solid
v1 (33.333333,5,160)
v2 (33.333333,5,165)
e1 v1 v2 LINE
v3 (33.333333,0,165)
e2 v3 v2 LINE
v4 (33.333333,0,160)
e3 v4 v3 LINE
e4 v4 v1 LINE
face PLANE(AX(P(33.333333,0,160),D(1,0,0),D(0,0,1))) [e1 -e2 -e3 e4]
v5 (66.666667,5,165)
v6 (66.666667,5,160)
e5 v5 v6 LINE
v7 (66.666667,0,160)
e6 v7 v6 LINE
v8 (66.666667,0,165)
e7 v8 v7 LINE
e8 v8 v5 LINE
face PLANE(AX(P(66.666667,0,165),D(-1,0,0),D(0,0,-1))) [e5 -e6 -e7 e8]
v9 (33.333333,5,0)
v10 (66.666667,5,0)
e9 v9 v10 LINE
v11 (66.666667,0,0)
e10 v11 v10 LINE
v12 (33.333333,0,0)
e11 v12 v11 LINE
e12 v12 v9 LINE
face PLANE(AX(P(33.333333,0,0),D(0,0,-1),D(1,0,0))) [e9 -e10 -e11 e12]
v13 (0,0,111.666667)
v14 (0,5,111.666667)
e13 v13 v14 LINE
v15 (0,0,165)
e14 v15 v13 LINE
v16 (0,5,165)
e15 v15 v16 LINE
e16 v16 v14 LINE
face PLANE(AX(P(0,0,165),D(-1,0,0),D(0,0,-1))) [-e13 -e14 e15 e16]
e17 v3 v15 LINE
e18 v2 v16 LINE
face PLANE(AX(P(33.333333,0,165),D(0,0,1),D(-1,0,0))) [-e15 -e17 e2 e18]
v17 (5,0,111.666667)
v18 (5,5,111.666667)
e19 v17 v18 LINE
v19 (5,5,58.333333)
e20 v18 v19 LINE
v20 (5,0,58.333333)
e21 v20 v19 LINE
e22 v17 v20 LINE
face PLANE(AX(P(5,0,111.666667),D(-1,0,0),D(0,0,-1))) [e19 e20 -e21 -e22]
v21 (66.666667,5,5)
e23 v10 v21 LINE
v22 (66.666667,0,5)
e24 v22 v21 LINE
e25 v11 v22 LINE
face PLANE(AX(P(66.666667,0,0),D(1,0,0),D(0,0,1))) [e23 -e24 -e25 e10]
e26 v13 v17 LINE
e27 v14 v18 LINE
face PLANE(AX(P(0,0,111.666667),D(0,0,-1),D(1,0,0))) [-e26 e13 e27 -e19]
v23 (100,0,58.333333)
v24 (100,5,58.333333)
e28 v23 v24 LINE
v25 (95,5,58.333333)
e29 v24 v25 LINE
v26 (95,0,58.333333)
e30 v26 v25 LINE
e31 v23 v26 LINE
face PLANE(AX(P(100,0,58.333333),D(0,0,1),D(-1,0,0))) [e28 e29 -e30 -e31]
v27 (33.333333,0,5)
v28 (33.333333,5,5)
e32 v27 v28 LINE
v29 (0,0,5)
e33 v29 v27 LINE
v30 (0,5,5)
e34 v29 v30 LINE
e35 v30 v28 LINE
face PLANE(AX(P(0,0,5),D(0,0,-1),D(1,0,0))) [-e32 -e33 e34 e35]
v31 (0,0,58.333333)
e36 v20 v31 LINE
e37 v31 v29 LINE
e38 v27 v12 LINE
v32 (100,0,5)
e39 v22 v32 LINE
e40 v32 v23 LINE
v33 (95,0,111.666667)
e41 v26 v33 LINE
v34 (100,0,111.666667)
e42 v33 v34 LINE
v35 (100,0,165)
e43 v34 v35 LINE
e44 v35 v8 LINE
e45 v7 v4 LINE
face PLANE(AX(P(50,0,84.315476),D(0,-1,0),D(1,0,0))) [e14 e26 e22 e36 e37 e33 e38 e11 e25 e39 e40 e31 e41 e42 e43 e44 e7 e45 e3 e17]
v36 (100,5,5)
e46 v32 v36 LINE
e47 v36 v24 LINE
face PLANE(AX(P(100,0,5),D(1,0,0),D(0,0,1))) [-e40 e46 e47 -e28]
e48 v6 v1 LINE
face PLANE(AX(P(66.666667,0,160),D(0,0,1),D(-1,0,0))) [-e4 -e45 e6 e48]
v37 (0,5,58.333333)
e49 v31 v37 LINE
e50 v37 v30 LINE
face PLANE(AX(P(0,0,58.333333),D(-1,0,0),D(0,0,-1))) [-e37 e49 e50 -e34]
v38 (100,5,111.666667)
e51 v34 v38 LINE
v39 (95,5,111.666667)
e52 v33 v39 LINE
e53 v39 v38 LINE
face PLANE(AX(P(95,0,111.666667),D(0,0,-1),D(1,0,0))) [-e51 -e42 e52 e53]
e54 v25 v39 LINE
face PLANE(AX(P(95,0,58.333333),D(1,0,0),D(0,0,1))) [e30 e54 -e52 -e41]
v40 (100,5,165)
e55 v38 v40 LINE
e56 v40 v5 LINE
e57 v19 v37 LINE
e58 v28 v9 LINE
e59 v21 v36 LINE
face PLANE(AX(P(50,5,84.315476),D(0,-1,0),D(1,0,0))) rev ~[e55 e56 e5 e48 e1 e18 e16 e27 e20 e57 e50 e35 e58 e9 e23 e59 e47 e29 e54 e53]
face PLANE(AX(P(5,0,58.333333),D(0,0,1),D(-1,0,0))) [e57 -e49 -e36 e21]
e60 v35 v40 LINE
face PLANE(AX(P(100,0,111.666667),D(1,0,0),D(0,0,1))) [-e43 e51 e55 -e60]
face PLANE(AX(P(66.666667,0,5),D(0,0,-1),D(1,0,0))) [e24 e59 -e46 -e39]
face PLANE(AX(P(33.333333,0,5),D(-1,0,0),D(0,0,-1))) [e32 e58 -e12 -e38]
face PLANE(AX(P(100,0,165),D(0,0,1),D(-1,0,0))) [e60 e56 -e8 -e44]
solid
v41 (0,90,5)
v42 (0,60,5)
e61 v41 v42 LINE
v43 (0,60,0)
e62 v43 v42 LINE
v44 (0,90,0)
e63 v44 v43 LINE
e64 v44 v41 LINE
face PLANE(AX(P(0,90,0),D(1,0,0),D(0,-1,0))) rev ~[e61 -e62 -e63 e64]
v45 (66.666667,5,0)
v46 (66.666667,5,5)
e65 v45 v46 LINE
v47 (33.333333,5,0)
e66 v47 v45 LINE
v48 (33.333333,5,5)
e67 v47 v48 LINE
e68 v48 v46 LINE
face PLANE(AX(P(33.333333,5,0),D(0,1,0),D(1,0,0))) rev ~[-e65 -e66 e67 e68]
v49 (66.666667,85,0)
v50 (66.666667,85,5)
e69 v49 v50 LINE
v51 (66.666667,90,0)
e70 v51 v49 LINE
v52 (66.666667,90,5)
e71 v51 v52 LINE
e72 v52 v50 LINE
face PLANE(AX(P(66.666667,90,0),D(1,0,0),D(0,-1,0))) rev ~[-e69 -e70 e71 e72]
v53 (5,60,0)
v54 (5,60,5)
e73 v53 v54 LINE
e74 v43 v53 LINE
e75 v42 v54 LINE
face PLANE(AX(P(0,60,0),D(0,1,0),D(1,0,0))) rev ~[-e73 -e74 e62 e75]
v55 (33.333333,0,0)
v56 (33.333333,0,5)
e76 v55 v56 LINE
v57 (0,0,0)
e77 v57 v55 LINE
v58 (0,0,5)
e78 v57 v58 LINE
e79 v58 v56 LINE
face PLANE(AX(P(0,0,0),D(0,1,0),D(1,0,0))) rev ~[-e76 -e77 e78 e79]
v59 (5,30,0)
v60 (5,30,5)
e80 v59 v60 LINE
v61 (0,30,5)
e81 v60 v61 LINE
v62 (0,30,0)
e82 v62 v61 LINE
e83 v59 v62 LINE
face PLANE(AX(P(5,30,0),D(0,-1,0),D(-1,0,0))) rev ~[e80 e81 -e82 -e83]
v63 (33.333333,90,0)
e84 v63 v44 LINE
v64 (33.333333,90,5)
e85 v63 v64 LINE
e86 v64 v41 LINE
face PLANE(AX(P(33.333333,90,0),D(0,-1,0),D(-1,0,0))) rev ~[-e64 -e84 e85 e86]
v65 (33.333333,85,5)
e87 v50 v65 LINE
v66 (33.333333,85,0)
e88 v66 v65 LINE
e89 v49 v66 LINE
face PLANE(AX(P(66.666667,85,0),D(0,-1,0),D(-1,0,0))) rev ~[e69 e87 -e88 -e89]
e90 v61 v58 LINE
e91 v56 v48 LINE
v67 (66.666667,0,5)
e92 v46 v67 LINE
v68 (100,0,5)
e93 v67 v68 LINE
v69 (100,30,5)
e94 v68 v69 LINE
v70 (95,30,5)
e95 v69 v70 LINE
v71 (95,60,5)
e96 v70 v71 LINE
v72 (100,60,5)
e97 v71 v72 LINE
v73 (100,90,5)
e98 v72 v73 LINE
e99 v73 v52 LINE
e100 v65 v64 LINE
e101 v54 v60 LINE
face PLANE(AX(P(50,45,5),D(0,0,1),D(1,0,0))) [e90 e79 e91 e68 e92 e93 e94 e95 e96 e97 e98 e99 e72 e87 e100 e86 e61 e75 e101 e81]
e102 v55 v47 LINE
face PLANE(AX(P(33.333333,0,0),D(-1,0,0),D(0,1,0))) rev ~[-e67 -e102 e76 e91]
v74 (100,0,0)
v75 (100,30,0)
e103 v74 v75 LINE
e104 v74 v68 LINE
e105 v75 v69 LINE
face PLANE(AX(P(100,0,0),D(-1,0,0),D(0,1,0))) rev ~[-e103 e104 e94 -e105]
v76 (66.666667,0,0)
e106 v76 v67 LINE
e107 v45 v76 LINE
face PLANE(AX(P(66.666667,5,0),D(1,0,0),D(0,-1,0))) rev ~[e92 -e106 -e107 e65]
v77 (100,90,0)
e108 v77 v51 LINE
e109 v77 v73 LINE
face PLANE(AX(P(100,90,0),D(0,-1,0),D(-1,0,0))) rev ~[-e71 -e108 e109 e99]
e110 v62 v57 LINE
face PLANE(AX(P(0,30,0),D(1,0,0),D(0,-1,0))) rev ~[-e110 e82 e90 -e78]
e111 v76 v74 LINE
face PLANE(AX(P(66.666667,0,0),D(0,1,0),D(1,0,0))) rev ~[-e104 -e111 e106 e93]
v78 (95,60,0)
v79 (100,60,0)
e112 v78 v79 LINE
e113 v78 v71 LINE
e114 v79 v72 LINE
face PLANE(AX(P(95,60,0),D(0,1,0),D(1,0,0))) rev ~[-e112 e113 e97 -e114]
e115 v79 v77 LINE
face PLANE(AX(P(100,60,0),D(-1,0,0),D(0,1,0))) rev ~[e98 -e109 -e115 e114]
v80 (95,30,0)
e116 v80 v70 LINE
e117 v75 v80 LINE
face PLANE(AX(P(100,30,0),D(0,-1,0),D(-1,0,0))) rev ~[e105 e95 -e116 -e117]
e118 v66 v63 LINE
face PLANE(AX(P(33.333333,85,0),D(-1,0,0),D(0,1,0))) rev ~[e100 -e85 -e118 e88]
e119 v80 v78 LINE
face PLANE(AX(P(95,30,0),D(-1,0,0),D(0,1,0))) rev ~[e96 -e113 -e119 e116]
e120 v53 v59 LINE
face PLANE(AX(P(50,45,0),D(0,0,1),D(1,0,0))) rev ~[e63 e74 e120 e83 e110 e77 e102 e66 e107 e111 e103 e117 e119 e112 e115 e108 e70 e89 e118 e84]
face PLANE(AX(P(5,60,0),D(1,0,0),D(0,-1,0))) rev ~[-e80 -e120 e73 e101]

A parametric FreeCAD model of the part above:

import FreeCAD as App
import Part
import Sketcher

V = App.Vector

doc = App.newDocument("Part")
body = doc.addObject("PartDesign::Body", "Body")

sketch1 = doc.addObject("Sketcher::SketchObject", "Sketch")
body.addObject(sketch1)
sketch1.AttachmentSupport = (doc.XY_Plane, [""])
sketch1.MapMode = "FlatFace"
sketch1.addGeometry(Part.LineSegment(V(0, 30, 0), V(0, 0, 0)), False)
sketch1.addGeometry(Part.LineSegment(V(0, 0, 0), V(33, 0, 0)), False)
sketch1.addGeometry(Part.LineSegment(V(33, 0, 0), V(33, 5, 0)), False)
sketch1.addGeometry(Part.LineSegment(V(33, 5, 0), V(67, 5, 0)), False)
sketch1.addGeometry(Part.LineSegment(V(67, 5, 0), V(67, 0, 0)), False)
sketch1.addGeometry(Part.LineSegment(V(67, 0, 0), V(100, 0, 0)), False)
sketch1.addGeometry(Part.LineSegment(V(100, 0, 0), V(100, 30, 0)), False)
sketch1.addGeometry(Part.LineSegment(V(100, 30, 0), V(95, 30, 0)), False)
sketch1.addGeometry(Part.LineSegment(V(95, 30, 0), V(95, 60, 0)), False)
sketch1.addGeometry(Part.LineSegment(V(95, 60, 0), V(100, 60, 0)), False)
sketch1.addGeometry(Part.LineSegment(V(100, 60, 0), V(100, 90, 0)), False)
sketch1.addGeometry(Part.LineSegment(V(100, 90, 0), V(67, 90, 0)), False)
sketch1.addGeometry(Part.LineSegment(V(67, 90, 0), V(67, 85, 0)), False)
sketch1.addGeometry(Part.LineSegment(V(67, 85, 0), V(33, 85, 0)), False)
sketch1.addGeometry(Part.LineSegment(V(33, 85, 0), V(33, 90, 0)), False)
sketch1.addGeometry(Part.LineSegment(V(33, 90, 0), V(0, 90, 0)), False)
sketch1.addGeometry(Part.LineSegment(V(0, 90, 0), V(0, 60, 0)), False)
sketch1.addGeometry(Part.LineSegment(V(0, 60, 0), V(5, 60, 0)), False)
sketch1.addGeometry(Part.LineSegment(V(5, 60, 0), V(5, 30, 0)), False)
sketch1.addGeometry(Part.LineSegment(V(5, 30, 0), V(0, 30, 0)), False)
sketch1.addConstraint(Sketcher.Constraint("Coincident", 0, 2, 1, 1))
sketch1.addConstraint(Sketcher.Constraint("Coincident", 1, 2, 2, 1))
sketch1.addConstraint(Sketcher.Constraint("Coincident", 2, 2, 3, 1))
sketch1.addConstraint(Sketcher.Constraint("Coincident", 3, 2, 4, 1))
sketch1.addConstraint(Sketcher.Constraint("Coincident", 4, 2, 5, 1))
sketch1.addConstraint(Sketcher.Constraint("Coincident", 5, 2, 6, 1))
sketch1.addConstraint(Sketcher.Constraint("Coincident", 6, 2, 7, 1))
sketch1.addConstraint(Sketcher.Constraint("Coincident", 7, 2, 8, 1))
sketch1.addConstraint(Sketcher.Constraint("Coincident", 8, 2, 9, 1))
sketch1.addConstraint(Sketcher.Constraint("Coincident", 9, 2, 10, 1))
sketch1.addConstraint(Sketcher.Constraint("Coincident", 10, 2, 11, 1))
sketch1.addConstraint(Sketcher.Constraint("Coincident", 11, 2, 12, 1))
sketch1.addConstraint(Sketcher.Constraint("Coincident", 12, 2, 13, 1))
sketch1.addConstraint(Sketcher.Constraint("Coincident", 13, 2, 14, 1))
sketch1.addConstraint(Sketcher.Constraint("Coincident", 14, 2, 15, 1))
sketch1.addConstraint(Sketcher.Constraint("Coincident", 15, 2, 16, 1))
sketch1.addConstraint(Sketcher.Constraint("Coincident", 16, 2, 17, 1))
sketch1.addConstraint(Sketcher.Constraint("Coincident", 17, 2, 18, 1))
sketch1.addConstraint(Sketcher.Constraint("Coincident", 18, 2, 19, 1))
sketch1.addConstraint(Sketcher.Constraint("Coincident", 19, 2, 0, 1))
sketch1.addConstraint(Sketcher.Constraint("Vertical", 0))
sketch1.addConstraint(Sketcher.Constraint("Horizontal", 1))
sketch1.addConstraint(Sketcher.Constraint("Vertical", 2))
sketch1.addConstraint(Sketcher.Constraint("Horizontal", 3))
sketch1.addConstraint(Sketcher.Constraint("Vertical", 4))
sketch1.addConstraint(Sketcher.Constraint("Horizontal", 5))
sketch1.addConstraint(Sketcher.Constraint("Vertical", 6))
sketch1.addConstraint(Sketcher.Constraint("Horizontal", 7))
sketch1.addConstraint(Sketcher.Constraint("Vertical", 8))
sketch1.addConstraint(Sketcher.Constraint("Horizontal", 9))
sketch1.addConstraint(Sketcher.Constraint("Vertical", 10))
sketch1.addConstraint(Sketcher.Constraint("Horizontal", 11))
sketch1.addConstraint(Sketcher.Constraint("Vertical", 12))
sketch1.addConstraint(Sketcher.Constraint("Horizontal", 13))
sketch1.addConstraint(Sketcher.Constraint("Vertical", 14))
sketch1.addConstraint(Sketcher.Constraint("Horizontal", 15))
sketch1.addConstraint(Sketcher.Constraint("Vertical", 16))
sketch1.addConstraint(Sketcher.Constraint("Horizontal", 17))
sketch1.addConstraint(Sketcher.Constraint("Vertical", 18))
sketch1.addConstraint(Sketcher.Constraint("Horizontal", 19))
sketch1.addConstraint(Sketcher.Constraint("Coincident", 0, 2, -1, 1))
sketch1.addConstraint(Sketcher.Constraint("PointOnObject", 4, 2, -1))
sketch1.addConstraint(Sketcher.Constraint("PointOnObject", 15, 2, -2))
sketch1.addConstraint(Sketcher.Constraint("Horizontal", 11, 2, 14, 2))
sketch1.addConstraint(Sketcher.Constraint("Horizontal", 9, 2, 16, 2))
sketch1.addConstraint(Sketcher.Constraint("Horizontal", 7, 2, 18, 2))
sketch1.addConstraint(Sketcher.Constraint("Vertical", 6, 2, 9, 2))
sketch1.addConstraint(Sketcher.Constraint("Vertical", 4, 2, 11, 2))
sketch1.addConstraint(Sketcher.Constraint("Vertical", 2, 2, 13, 2))
sketch1.addConstraint(Sketcher.Constraint("Equal", 1, 3))
sketch1.addConstraint(Sketcher.Constraint("Equal", 3, 5))
sketch1.addConstraint(Sketcher.Constraint("Equal", 9, 17))
sketch1.addConstraint(Sketcher.Constraint("Equal", 19, 2))
sketch1.addConstraint(Sketcher.Constraint("Equal", 6, 8))
sketch1.addConstraint(Sketcher.Constraint("Equal", 8, 10))
sketch1.addConstraint(Sketcher.Constraint("Equal", 4, 12))
sketch1.addConstraint(Sketcher.Constraint("DistanceX", 7, 2, 7, 1, 5.0))
sketch1.addConstraint(Sketcher.Constraint("DistanceY", 0, 2, 0, 1, 30.0))
sketch1.addConstraint(Sketcher.Constraint("DistanceX", -1, 1, 5, 2, 100.0))
pad1 = doc.addObject("PartDesign::Pad", "Pad")
body.addObject(pad1)
pad1.Profile = sketch1
pad1.Length = 5
body2 = doc.addObject("PartDesign::Body", "Body001")

sketch2 = doc.addObject("Sketcher::SketchObject", "Sketch001")
body2.addObject(sketch2)
sketch2.AttachmentSupport = (doc.getObject("XZ_Plane001"), [""])
sketch2.MapMode = "FlatFace"
sketch2.addGeometry(Part.LineSegment(V(33, 0, 0), V(67, 0, 0)), False)
sketch2.addGeometry(Part.LineSegment(V(67, 0, 0), V(67, 5, 0)), False)
sketch2.addGeometry(Part.LineSegment(V(67, 5, 0), V(100, 5, 0)), False)
sketch2.addGeometry(Part.LineSegment(V(100, 5, 0), V(100, 58, 0)), False)
sketch2.addGeometry(Part.LineSegment(V(100, 58, 0), V(95, 58, 0)), False)
sketch2.addGeometry(Part.LineSegment(V(95, 58, 0), V(95, 112, 0)), False)
sketch2.addGeometry(Part.LineSegment(V(95, 112, 0), V(100, 112, 0)), False)
sketch2.addGeometry(Part.LineSegment(V(100, 112, 0), V(100, 165, 0)), False)
sketch2.addGeometry(Part.LineSegment(V(100, 165, 0), V(67, 165, 0)), False)
sketch2.addGeometry(Part.LineSegment(V(67, 165, 0), V(67, 160, 0)), False)
sketch2.addGeometry(Part.LineSegment(V(67, 160, 0), V(33, 160, 0)), False)
sketch2.addGeometry(Part.LineSegment(V(33, 160, 0), V(33, 165, 0)), False)
sketch2.addGeometry(Part.LineSegment(V(33, 165, 0), V(0, 165, 0)), False)
sketch2.addGeometry(Part.LineSegment(V(0, 165, 0), V(0, 112, 0)), False)
sketch2.addGeometry(Part.LineSegment(V(0, 112, 0), V(5, 112, 0)), False)
sketch2.addGeometry(Part.LineSegment(V(5, 112, 0), V(5, 58, 0)), False)
sketch2.addGeometry(Part.LineSegment(V(5, 58, 0), V(0, 58, 0)), False)
sketch2.addGeometry(Part.LineSegment(V(0, 58, 0), V(0, 5, 0)), False)
sketch2.addGeometry(Part.LineSegment(V(0, 5, 0), V(33, 5, 0)), False)
sketch2.addGeometry(Part.LineSegment(V(33, 5, 0), V(33, 0, 0)), False)
sketch2.addConstraint(Sketcher.Constraint("Coincident", 0, 2, 1, 1))
sketch2.addConstraint(Sketcher.Constraint("Coincident", 1, 2, 2, 1))
sketch2.addConstraint(Sketcher.Constraint("Coincident", 2, 2, 3, 1))
sketch2.addConstraint(Sketcher.Constraint("Coincident", 3, 2, 4, 1))
sketch2.addConstraint(Sketcher.Constraint("Coincident", 4, 2, 5, 1))
sketch2.addConstraint(Sketcher.Constraint("Coincident", 5, 2, 6, 1))
sketch2.addConstraint(Sketcher.Constraint("Coincident", 6, 2, 7, 1))
sketch2.addConstraint(Sketcher.Constraint("Coincident", 7, 2, 8, 1))
sketch2.addConstraint(Sketcher.Constraint("Coincident", 8, 2, 9, 1))
sketch2.addConstraint(Sketcher.Constraint("Coincident", 9, 2, 10, 1))
sketch2.addConstraint(Sketcher.Constraint("Coincident", 10, 2, 11, 1))
sketch2.addConstraint(Sketcher.Constraint("Coincident", 11, 2, 12, 1))
sketch2.addConstraint(Sketcher.Constraint("Coincident", 12, 2, 13, 1))
sketch2.addConstraint(Sketcher.Constraint("Coincident", 13, 2, 14, 1))
sketch2.addConstraint(Sketcher.Constraint("Coincident", 14, 2, 15, 1))
sketch2.addConstraint(Sketcher.Constraint("Coincident", 15, 2, 16, 1))
sketch2.addConstraint(Sketcher.Constraint("Coincident", 16, 2, 17, 1))
sketch2.addConstraint(Sketcher.Constraint("Coincident", 17, 2, 18, 1))
sketch2.addConstraint(Sketcher.Constraint("Coincident", 18, 2, 19, 1))
sketch2.addConstraint(Sketcher.Constraint("Coincident", 19, 2, 0, 1))
sketch2.addConstraint(Sketcher.Constraint("Horizontal", 0))
sketch2.addConstraint(Sketcher.Constraint("Vertical", 1))
sketch2.addConstraint(Sketcher.Constraint("Horizontal", 2))
sketch2.addConstraint(Sketcher.Constraint("Vertical", 3))
sketch2.addConstraint(Sketcher.Constraint("Horizontal", 4))
sketch2.addConstraint(Sketcher.Constraint("Vertical", 5))
sketch2.addConstraint(Sketcher.Constraint("Horizontal", 6))
sketch2.addConstraint(Sketcher.Constraint("Vertical", 7))
sketch2.addConstraint(Sketcher.Constraint("Horizontal", 8))
sketch2.addConstraint(Sketcher.Constraint("Vertical", 9))
sketch2.addConstraint(Sketcher.Constraint("Horizontal", 10))
sketch2.addConstraint(Sketcher.Constraint("Vertical", 11))
sketch2.addConstraint(Sketcher.Constraint("Horizontal", 12))
sketch2.addConstraint(Sketcher.Constraint("Vertical", 13))
sketch2.addConstraint(Sketcher.Constraint("Horizontal", 14))
sketch2.addConstraint(Sketcher.Constraint("Vertical", 15))
sketch2.addConstraint(Sketcher.Constraint("Horizontal", 16))
sketch2.addConstraint(Sketcher.Constraint("Vertical", 17))
sketch2.addConstraint(Sketcher.Constraint("Horizontal", 18))
sketch2.addConstraint(Sketcher.Constraint("Vertical", 19))
sketch2.addConstraint(Sketcher.Constraint("PointOnObject", 0, 2, -1))
sketch2.addConstraint(Sketcher.Constraint("PointOnObject", 12, 2, -2))
sketch2.addConstraint(Sketcher.Constraint("PointOnObject", 16, 2, -2))
sketch2.addConstraint(Sketcher.Constraint("Horizontal", 8, 2, 11, 2))
sketch2.addConstraint(Sketcher.Constraint("Horizontal", 6, 2, 13, 2))
sketch2.addConstraint(Sketcher.Constraint("Horizontal", 4, 2, 15, 2))
sketch2.addConstraint(Sketcher.Constraint("Horizontal", 2, 2, 17, 2))
sketch2.addConstraint(Sketcher.Constraint("Vertical", 3, 2, 6, 2))
sketch2.addConstraint(Sketcher.Constraint("Vertical", 1, 2, 8, 2))
sketch2.addConstraint(Sketcher.Constraint("Vertical", 11, 2, 18, 2))
sketch2.addConstraint(Sketcher.Constraint("Equal", 0, 2))
sketch2.addConstraint(Sketcher.Constraint("Equal", 10, 12))
sketch2.addConstraint(Sketcher.Constraint("Equal", 6, 14))
sketch2.addConstraint(Sketcher.Constraint("Equal", 16, 1))
sketch2.addConstraint(Sketcher.Constraint("Equal", 3, 5))
sketch2.addConstraint(Sketcher.Constraint("Equal", 5, 7))
sketch2.addConstraint(Sketcher.Constraint("Equal", 1, 9))
sketch2.addConstraint(Sketcher.Constraint("DistanceX", 4, 2, 4, 1, 5.0))
sketch2.addConstraint(Sketcher.Constraint("DistanceX", -1, 1, 2, 2, 100.0))
sketch2.addConstraint(Sketcher.Constraint("DistanceY", -1, 1, 7, 2, 165.0))
pad2 = doc.addObject("PartDesign::Pad", "Pad001")
body2.addObject(pad2)
pad2.Profile = sketch2
pad2.Length = 5
pad2.Reversed = True

doc.recompute()
